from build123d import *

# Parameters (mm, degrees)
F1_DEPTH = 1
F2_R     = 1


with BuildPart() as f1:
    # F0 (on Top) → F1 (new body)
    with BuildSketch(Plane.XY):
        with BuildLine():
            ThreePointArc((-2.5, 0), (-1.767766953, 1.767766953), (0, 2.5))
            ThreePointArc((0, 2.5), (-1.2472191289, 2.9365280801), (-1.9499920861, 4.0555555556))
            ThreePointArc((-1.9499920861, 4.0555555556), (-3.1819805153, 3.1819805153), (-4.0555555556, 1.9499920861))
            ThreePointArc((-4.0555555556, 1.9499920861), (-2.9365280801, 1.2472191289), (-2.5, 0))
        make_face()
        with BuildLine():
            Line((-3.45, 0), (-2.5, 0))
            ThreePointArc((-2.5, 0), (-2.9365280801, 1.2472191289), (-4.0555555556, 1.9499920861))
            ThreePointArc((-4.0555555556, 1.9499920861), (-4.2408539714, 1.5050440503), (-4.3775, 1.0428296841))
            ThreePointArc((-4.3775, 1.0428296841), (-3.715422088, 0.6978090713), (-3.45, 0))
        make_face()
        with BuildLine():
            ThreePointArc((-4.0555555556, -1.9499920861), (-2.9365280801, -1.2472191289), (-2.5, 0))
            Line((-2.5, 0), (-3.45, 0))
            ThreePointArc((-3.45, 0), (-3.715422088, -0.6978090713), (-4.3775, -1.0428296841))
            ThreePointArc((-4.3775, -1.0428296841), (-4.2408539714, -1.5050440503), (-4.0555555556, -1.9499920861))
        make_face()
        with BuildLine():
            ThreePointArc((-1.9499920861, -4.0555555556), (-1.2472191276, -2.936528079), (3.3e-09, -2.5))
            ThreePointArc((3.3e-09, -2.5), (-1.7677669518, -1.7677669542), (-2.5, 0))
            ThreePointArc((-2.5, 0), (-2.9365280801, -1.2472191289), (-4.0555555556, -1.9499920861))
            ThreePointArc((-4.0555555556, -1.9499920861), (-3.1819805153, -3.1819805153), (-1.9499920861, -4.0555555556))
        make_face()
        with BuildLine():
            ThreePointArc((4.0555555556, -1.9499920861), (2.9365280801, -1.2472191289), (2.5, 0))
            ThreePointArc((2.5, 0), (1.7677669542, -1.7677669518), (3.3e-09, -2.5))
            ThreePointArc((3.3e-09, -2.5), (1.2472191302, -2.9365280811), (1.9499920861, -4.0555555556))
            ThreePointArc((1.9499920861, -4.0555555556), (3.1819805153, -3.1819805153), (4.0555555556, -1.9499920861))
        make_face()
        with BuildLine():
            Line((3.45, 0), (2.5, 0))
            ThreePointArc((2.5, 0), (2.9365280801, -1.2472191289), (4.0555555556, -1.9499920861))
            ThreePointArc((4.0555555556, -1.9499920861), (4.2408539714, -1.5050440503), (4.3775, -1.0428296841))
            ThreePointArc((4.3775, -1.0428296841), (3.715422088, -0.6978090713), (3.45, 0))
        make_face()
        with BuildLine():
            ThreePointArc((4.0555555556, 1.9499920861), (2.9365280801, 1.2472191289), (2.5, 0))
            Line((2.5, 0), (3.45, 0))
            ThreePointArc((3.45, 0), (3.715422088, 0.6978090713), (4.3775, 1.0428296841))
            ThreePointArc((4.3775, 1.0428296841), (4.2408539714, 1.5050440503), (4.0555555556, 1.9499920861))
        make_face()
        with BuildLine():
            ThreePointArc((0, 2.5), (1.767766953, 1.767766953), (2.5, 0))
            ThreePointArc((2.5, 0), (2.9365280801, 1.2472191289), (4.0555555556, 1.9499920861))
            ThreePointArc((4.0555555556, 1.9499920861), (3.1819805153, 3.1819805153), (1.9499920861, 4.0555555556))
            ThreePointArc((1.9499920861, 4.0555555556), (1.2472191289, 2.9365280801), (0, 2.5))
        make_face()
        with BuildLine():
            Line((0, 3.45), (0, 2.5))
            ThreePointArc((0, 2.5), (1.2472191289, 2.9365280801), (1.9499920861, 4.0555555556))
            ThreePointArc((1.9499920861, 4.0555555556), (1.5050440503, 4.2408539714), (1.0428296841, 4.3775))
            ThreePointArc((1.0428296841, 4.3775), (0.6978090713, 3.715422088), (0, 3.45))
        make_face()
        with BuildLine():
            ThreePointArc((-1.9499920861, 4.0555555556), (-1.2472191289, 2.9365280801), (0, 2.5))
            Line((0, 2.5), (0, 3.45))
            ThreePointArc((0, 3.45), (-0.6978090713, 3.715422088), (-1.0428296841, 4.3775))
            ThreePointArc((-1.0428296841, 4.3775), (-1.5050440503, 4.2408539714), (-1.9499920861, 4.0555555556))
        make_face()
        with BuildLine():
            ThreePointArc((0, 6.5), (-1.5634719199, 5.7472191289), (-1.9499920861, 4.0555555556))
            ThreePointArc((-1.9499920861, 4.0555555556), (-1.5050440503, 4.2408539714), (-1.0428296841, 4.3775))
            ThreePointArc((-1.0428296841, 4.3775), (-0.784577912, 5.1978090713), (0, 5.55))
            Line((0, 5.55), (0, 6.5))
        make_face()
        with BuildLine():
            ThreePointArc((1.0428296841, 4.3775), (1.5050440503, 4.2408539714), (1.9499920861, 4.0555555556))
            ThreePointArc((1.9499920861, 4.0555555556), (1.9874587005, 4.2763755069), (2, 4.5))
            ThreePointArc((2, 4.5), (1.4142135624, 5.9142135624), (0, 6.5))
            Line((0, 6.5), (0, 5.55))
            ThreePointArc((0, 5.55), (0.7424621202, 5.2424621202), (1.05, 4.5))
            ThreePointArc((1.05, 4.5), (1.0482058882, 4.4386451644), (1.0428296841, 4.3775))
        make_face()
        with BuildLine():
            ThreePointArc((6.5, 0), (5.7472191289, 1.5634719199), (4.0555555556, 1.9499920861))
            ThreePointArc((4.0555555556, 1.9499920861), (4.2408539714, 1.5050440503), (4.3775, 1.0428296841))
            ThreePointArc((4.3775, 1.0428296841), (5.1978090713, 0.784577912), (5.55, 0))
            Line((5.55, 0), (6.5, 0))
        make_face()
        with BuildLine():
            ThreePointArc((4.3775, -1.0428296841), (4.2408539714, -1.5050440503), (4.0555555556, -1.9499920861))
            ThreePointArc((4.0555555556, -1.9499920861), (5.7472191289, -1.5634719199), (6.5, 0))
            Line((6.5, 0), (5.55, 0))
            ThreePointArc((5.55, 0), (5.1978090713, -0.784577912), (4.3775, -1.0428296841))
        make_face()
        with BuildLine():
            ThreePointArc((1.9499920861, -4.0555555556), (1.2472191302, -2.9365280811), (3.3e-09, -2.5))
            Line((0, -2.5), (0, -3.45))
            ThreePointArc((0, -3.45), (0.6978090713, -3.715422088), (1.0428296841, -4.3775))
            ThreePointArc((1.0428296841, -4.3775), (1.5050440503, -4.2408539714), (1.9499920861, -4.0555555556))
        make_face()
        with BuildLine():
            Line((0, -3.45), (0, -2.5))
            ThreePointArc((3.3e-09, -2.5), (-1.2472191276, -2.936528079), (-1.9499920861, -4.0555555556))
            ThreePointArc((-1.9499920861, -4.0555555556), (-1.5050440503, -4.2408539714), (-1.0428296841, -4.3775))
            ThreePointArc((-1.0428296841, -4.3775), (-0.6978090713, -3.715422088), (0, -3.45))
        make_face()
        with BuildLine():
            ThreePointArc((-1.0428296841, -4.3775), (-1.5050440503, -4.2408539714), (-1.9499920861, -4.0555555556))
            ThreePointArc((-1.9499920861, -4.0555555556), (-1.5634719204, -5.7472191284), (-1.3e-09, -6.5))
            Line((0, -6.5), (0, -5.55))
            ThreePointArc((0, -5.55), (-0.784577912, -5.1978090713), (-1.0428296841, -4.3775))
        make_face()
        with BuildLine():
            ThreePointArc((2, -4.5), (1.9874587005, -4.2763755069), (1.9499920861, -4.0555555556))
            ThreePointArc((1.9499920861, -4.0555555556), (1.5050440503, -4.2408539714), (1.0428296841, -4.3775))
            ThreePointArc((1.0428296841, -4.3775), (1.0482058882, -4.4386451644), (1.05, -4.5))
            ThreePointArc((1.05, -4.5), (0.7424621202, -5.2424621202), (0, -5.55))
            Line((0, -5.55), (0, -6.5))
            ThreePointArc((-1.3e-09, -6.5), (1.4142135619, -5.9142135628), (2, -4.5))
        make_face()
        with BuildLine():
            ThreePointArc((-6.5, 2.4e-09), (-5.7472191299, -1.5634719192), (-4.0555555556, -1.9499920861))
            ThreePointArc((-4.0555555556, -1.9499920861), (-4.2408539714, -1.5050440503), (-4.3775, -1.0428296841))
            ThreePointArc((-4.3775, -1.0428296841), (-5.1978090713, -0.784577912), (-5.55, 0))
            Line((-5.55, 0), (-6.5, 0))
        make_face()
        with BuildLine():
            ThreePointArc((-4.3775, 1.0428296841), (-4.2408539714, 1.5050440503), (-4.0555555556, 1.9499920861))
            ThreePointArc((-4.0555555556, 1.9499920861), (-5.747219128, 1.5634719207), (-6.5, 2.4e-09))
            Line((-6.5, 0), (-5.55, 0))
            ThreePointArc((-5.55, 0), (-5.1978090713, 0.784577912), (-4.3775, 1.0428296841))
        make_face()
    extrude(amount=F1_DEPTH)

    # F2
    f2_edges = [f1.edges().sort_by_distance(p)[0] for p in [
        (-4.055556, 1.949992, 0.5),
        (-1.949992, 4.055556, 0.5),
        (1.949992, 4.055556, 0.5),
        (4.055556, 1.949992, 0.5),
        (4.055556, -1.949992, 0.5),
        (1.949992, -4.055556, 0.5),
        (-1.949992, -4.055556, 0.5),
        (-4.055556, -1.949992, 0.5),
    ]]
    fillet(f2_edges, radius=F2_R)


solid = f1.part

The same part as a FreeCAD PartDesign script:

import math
import FreeCAD as App
import Part
import Sketcher

V = App.Vector


def edges_at(feature, points):
    """Names of the edges that pass closest to the given points."""
    edges = feature.Shape.Edges
    near = lambda p: min(range(len(edges)), key=lambda i: edges[i].distToShape(Part.Vertex(*p))[0])
    return sorted({f"Edge{near(p) + 1}" for p in points})

doc = App.newDocument("Part")
params = doc.addObject("Spreadsheet::Sheet", "Params")
for row, (alias, value) in enumerate([
    ("sketch1_radius", "2 mm"),
    ("sketch1_radius2", "4.5 mm"),
    ("sketch1_radius3", "2.5 mm"),
    ("sketch1_radius4", "1.05 mm"),
    ("pad1_length", "1 mm"),
    ("fillet_radius", "1 mm"),
], start=1):
    params.set(f"A{row}", alias)
    params.set(f"B{row}", "=" + value)
    params.setAlias(f"B{row}", alias)

body = doc.addObject("PartDesign::Body", "Body")

# Sketch on XY plane
sketch1 = doc.addObject("Sketcher::SketchObject", "Sketch")
body.addObject(sketch1)
sketch1.AttachmentSupport = (doc.XY_Plane, [""])
sketch1.MapMode = "FlatFace"
sketch1.addGeometry([
    Part.ArcOfCircle(Part.Circle(V(0, 0, 0), V(0, 0, 1), 4.5), math.radians(-154), math.radians(-116)),  # 0
    Part.ArcOfCircle(Part.Circle(V(0, -4.5, 0), V(0, 0, 1), 2), math.radians(167), math.radians(270)),  # 1
    Part.ArcOfCircle(Part.Circle(V(0, -4.5, 0), V(0, 0, 1), 2), math.radians(-90), math.radians(0)),  # 2
    Part.ArcOfCircle(Part.Circle(V(0, -4.5, 0), V(0, 0, 1), 2), math.radians(0), math.radians(12.84)),  # 3
    Part.ArcOfCircle(Part.Circle(V(0, 0, 0), V(0, 0, 1), 4.5), math.radians(-64), math.radians(-26)),  # 4
    Part.ArcOfCircle(Part.Circle(V(4.5, 0, 0), V(0, 0, 1), 2), math.radians(-103), math.radians(0)),  # 5
    Part.ArcOfCircle(Part.Circle(V(4.5, 0, 0), V(0, 0, 1), 2), math.radians(0), math.radians(103)),  # 6
    Part.ArcOfCircle(Part.Circle(V(0, 0, 0), V(0, 0, 1), 4.5), math.radians(26), math.radians(64)),  # 7
    Part.ArcOfCircle(Part.Circle(V(0, 4.5, 0), V(0, 0, 1), 2), math.radians(-12.84), math.radians(0)),  # 8
    Part.ArcOfCircle(Part.Circle(V(0, 4.5, 0), V(0, 0, 1), 2), math.radians(0), math.radians(90)),  # 9
    Part.ArcOfCircle(Part.Circle(V(0, 4.5, 0), V(0, 0, 1), 2), math.radians(90), math.radians(193)),  # 10
    Part.ArcOfCircle(Part.Circle(V(0, 0, 0), V(0, 0, 1), 4.5), math.radians(116), math.radians(154)),  # 11
    Part.ArcOfCircle(Part.Circle(V(-4.5, 0, 0), V(0, 0, 1), 2), math.radians(77), math.radians(180)),  # 12
    Part.ArcOfCircle(Part.Circle(V(-4.5, 0, 0), V(0, 0, 1), 2), math.radians(180), math.radians(283)),  # 13
    Part.ArcOfCircle(Part.Circle(V(-4.5, 0, 0), V(0, 0, 1), 1.05), math.radians(0), math.radians(83)),  # 14
    Part.ArcOfCircle(Part.Circle(V(-4.5, 0, 0), V(0, 0, 1), 1.05), math.radians(-83), math.radians(0)),  # 15
    Part.ArcOfCircle(Part.Circle(V(-4.5, 0, 0), V(0, 0, 1), 1.05), math.radians(180), math.radians(277)),  # 16
    Part.ArcOfCircle(Part.Circle(V(-4.5, 0, 0), V(0, 0, 1), 1.05), math.radians(83), math.radians(180)),  # 17
    Part.ArcOfCircle(Part.Circle(V(0, -4.5, 0), V(0, 0, 1), 1.05), math.radians(173), math.radians(270)),  # 18
    Part.ArcOfCircle(Part.Circle(V(0, -4.5, 0), V(0, 0, 1), 1.05), math.radians(90), math.radians(173)),  # 19
    Part.ArcOfCircle(Part.Circle(V(0, -4.5, 0), V(0, 0, 1), 1.05), math.radians(7), math.radians(90)),  # 20
    Part.ArcOfCircle(Part.Circle(V(0, -4.5, 0), V(0, 0, 1), 1.05), math.radians(0), math.radians(6.7)),  # 21
    Part.ArcOfCircle(Part.Circle(V(0, -4.5, 0), V(0, 0, 1), 1.05), math.radians(-90), math.radians(0)),  # 22
    Part.ArcOfCircle(Part.Circle(V(0, 0, 0), V(0, 0, 1), 2.5), math.radians(-90), math.radians(0)),  # 23
    Part.ArcOfCircle(Part.Circle(V(0, 0, 0), V(0, 0, 1), 2.5), math.radians(180), math.radians(270)),  # 24
    Part.ArcOfCircle(Part.Circle(V(0, 0, 0), V(0, 0, 1), 2.5), math.radians(90), math.radians(180)),  # 25
    Part.ArcOfCircle(Part.Circle(V(0, 0, 0), V(0, 0, 1), 2.5), math.radians(0), math.radians(90)),  # 26
    Part.ArcOfCircle(Part.Circle(V(4.5, 0, 0), V(0, 0, 1), 1.05), math.radians(0), math.radians(97)),  # 27
    Part.ArcOfCircle(Part.Circle(V(4.5, 0, 0), V(0, 0, 1), 1.05), math.radians(-97), math.radians(0)),  # 28
    Part.ArcOfCircle(Part.Circle(V(4.5, 0, 0), V(0, 0, 1), 1.05), math.radians(180), math.radians(263)),  # 29
    Part.ArcOfCircle(Part.Circle(V(4.5, 0, 0), V(0, 0, 1), 1.05), math.radians(97), math.radians(180)),  # 30
    Part.ArcOfCircle(Part.Circle(V(0, 4.5, 0), V(0, 0, 1), 1.05), math.radians(90), math.radians(187)),  # 31
    Part.ArcOfCircle(Part.Circle(V(0, 4.5, 0), V(0, 0, 1), 1.05), math.radians(0), math.radians(90)),  # 32
    Part.ArcOfCircle(Part.Circle(V(0, 4.5, 0), V(0, 0, 1), 1.05), math.radians(-6.7), math.radians(0)),  # 33
    Part.ArcOfCircle(Part.Circle(V(0, 4.5, 0), V(0, 0, 1), 1.05), math.radians(-90), math.radians(-7)),  # 34
    Part.ArcOfCircle(Part.Circle(V(0, 4.5, 0), V(0, 0, 1), 1.05), math.radians(-173), math.radians(-90)),  # 35
], False)
sketch1.addConstraint([
    Sketcher.Constraint("Coincident", 0, 2, 1, 1),
    Sketcher.Constraint("Tangent", 1, 2, 2, 1),
    Sketcher.Constraint("Tangent", 2, 2, 3, 1),
    Sketcher.Constraint("Coincident", 3, 2, 4, 1),
    Sketcher.Constraint("Coincident", 4, 2, 5, 1),
    Sketcher.Constraint("Tangent", 5, 2, 6, 1),
    Sketcher.Constraint("Coincident", 6, 2, 7, 1),
    Sketcher.Constraint("Coincident", 7, 2, 8, 1),
    Sketcher.Constraint("Tangent", 8, 2, 9, 1),
    Sketcher.Constraint("Tangent", 9, 2, 10, 1),
    Sketcher.Constraint("Coincident", 10, 2, 11, 1),
    Sketcher.Constraint("Coincident", 11, 2, 12, 1),
    Sketcher.Constraint("Tangent", 12, 2, 13, 1),
    Sketcher.Constraint("Coincident", 13, 2, 0, 1),
    Sketcher.Constraint("Tangent", 14, 1, 15, 2),
    Sketcher.Constraint("Tangent", 15, 1, 16, 2),
    Sketcher.Constraint("Tangent", 16, 1, 17, 2),
    Sketcher.Constraint("Tangent", 17, 1, 14, 2),
    Sketcher.Constraint("Tangent", 18, 1, 19, 2),
    Sketcher.Constraint("Tangent", 19, 1, 20, 2),
    Sketcher.Constraint("Tangent", 20, 1, 21, 2),
    Sketcher.Constraint("Tangent", 21, 1, 22, 2),
    Sketcher.Constraint("Tangent", 22, 1, 18, 2),
    Sketcher.Constraint("Tangent", 23, 1, 24, 2),
    Sketcher.Constraint("Tangent", 24, 1, 25, 2),
    Sketcher.Constraint("Tangent", 25, 1, 26, 2),
    Sketcher.Constraint("Tangent", 26, 1, 23, 2),
    Sketcher.Constraint("Tangent", 27, 1, 28, 2),
    Sketcher.Constraint("Tangent", 28, 1, 29, 2),
    Sketcher.Constraint("Tangent", 29, 1, 30, 2),
    Sketcher.Constraint("Tangent", 30, 1, 27, 2),
    Sketcher.Constraint("Tangent", 31, 1, 32, 2),
    Sketcher.Constraint("Tangent", 32, 1, 33, 2),
    Sketcher.Constraint("Tangent", 33, 1, 34, 2),
    Sketcher.Constraint("Tangent", 34, 1, 35, 2),
    Sketcher.Constraint("Tangent", 35, 1, 31, 2),
    Sketcher.Constraint("Coincident", 0, 3, -1, 1),
    Sketcher.Constraint("Coincident", 4, 3, -1, 1),
    Sketcher.Constraint("Coincident", 7, 3, -1, 1),
    Sketcher.Constraint("Coincident", 11, 3, -1, 1),
    Sketcher.Constraint("Coincident", 23, 3, -1, 1),
    Sketcher.Constraint("Coincident", 3, 3, 1, 3),
    Sketcher.Constraint("Coincident", 10, 3, 8, 3),
    Sketcher.Constraint("Coincident", 14, 3, 12, 3),
    Sketcher.Constraint("Coincident", 18, 3, 1, 3),
    Sketcher.Constraint("Coincident", 20, 3, 1, 3),
    Sketcher.Constraint("Coincident", 27, 3, 5, 3),
    Sketcher.Constraint("Coincident", 31, 3, 8, 3),
    Sketcher.Constraint("Coincident", 33, 3, 8, 3),
    Sketcher.Constraint("Equal", 0, 4),
    Sketcher.Constraint("Equal", 3, 5),
    Sketcher.Constraint("Equal", 5, 6),
    Sketcher.Constraint("Equal", 4, 7),
    Sketcher.Constraint("Equal", 6, 8),
    Sketcher.Constraint("Equal", 7, 11),
    Sketcher.Constraint("Equal", 10, 12),
    Sketcher.Constraint("Equal", 12, 13),
    Sketcher.Constraint("Equal", 14, 15),
    Sketcher.Constraint("Equal", 17, 18),
    Sketcher.Constraint("Equal", 23, 24),
    Sketcher.Constraint("Equal", 22, 27),
    Sketcher.Constraint("Equal", 27, 28),
    Sketcher.Constraint("Equal", 30, 31),
    Sketcher.Constraint("Symmetric", 1, 3, 8, 3, -1, 1),
    Sketcher.Constraint("Symmetric", 5, 3, 12, 3, -1, 1),
    Sketcher.Constraint("Symmetric", 18, 1, 20, 1, -2),
    Sketcher.Constraint("Symmetric", 15, 1, 28, 1, -2),
    Sketcher.Constraint("PointOnObject", 1, 2, -2),
    Sketcher.Constraint("PointOnObject", 5, 2, -1),
    Sketcher.Constraint("PointOnObject", 9, 2, -2),
    Sketcher.Constraint("PointOnObject", 12, 2, -1),
    Sketcher.Constraint("PointOnObject", 14, 1, -1),
    Sketcher.Constraint("PointOnObject", 16, 1, -1),
    Sketcher.Constraint("PointOnObject", 19, 1, -2),
    Sketcher.Constraint("PointOnObject", 22, 1, -2),
    Sketcher.Constraint("PointOnObject", 23, 1, -2),
    Sketcher.Constraint("PointOnObject", 24, 1, -1),
    Sketcher.Constraint("PointOnObject", 25, 1, -2),
    Sketcher.Constraint("PointOnObject", 26, 1, -1),
    Sketcher.Constraint("PointOnObject", 27, 1, -1),
    Sketcher.Constraint("PointOnObject", 29, 1, -1),
    Sketcher.Constraint("PointOnObject", 31, 1, -2),
    Sketcher.Constraint("PointOnObject", 34, 1, -2),
    Sketcher.Constraint("Horizontal", 22, 3, 2, 2),
    Sketcher.Constraint("Horizontal", 35, 3, 8, 2),
    Sketcher.Constraint("Horizontal", 2, 2, 21, 1),
    Sketcher.Constraint("Horizontal", 17, 1, 30, 1),
    Sketcher.Constraint("Horizontal", 8, 2, 32, 1),
    Sketcher.Constraint("Horizontal", 33, 1, 35, 1),
    Sketcher.Constraint("Vertical", 15, 1, 17, 1),
    Sketcher.Constraint("Vertical", 20, 1, 33, 1),
    Sketcher.Constraint("Radius", 1, 2.0),
    Sketcher.Constraint("Radius", 0, 4.5),
    Sketcher.Constraint("Radius", 23, 2.5),
    Sketcher.Constraint("Radius", 14, 1.05),
    Sketcher.Constraint("DistanceY", 1, 3, -1, 1, 4.5),
    Sketcher.Constraint("DistanceX", -1, 1, 5, 3, 4.5),
    Sketcher.Constraint("DistanceX", 15, 1, -1, 1, 4.3775),
    Sketcher.Constraint("DistanceY", 18, 1, -1, 1, 4.3775),
])
sketch1.setExpression("Constraints[91]", "Params.sketch1_radius")
sketch1.setExpression("Constraints[92]", "Params.sketch1_radius2")
sketch1.setExpression("Constraints[93]", "Params.sketch1_radius3")
sketch1.setExpression("Constraints[94]", "Params.sketch1_radius4")
pad1 = doc.addObject("PartDesign::Pad", "Pad")
body.addObject(pad1)
pad1.Profile = sketch1
pad1.setExpression("Length", "Params.pad1_length")
doc.recompute()

fillet = doc.addObject("PartDesign::Fillet", "Fillet")
body.addObject(fillet)
fillet.Base = (pad1, edges_at(pad1, [
    (-4.056, 1.95, 0.5),
    (-1.95, 4.056, 0.5),
    (1.95, 4.056, 0.5),
    (4.056, 1.95, 0.5),
    (4.056, -1.95, 0.5),
    (1.95, -4.056, 0.5),
    (-1.95, -4.056, 0.5),
    (-4.056, -1.95, 0.5),
]))
fillet.setExpression("Radius", "Params.fillet_radius")

doc.recompute()
